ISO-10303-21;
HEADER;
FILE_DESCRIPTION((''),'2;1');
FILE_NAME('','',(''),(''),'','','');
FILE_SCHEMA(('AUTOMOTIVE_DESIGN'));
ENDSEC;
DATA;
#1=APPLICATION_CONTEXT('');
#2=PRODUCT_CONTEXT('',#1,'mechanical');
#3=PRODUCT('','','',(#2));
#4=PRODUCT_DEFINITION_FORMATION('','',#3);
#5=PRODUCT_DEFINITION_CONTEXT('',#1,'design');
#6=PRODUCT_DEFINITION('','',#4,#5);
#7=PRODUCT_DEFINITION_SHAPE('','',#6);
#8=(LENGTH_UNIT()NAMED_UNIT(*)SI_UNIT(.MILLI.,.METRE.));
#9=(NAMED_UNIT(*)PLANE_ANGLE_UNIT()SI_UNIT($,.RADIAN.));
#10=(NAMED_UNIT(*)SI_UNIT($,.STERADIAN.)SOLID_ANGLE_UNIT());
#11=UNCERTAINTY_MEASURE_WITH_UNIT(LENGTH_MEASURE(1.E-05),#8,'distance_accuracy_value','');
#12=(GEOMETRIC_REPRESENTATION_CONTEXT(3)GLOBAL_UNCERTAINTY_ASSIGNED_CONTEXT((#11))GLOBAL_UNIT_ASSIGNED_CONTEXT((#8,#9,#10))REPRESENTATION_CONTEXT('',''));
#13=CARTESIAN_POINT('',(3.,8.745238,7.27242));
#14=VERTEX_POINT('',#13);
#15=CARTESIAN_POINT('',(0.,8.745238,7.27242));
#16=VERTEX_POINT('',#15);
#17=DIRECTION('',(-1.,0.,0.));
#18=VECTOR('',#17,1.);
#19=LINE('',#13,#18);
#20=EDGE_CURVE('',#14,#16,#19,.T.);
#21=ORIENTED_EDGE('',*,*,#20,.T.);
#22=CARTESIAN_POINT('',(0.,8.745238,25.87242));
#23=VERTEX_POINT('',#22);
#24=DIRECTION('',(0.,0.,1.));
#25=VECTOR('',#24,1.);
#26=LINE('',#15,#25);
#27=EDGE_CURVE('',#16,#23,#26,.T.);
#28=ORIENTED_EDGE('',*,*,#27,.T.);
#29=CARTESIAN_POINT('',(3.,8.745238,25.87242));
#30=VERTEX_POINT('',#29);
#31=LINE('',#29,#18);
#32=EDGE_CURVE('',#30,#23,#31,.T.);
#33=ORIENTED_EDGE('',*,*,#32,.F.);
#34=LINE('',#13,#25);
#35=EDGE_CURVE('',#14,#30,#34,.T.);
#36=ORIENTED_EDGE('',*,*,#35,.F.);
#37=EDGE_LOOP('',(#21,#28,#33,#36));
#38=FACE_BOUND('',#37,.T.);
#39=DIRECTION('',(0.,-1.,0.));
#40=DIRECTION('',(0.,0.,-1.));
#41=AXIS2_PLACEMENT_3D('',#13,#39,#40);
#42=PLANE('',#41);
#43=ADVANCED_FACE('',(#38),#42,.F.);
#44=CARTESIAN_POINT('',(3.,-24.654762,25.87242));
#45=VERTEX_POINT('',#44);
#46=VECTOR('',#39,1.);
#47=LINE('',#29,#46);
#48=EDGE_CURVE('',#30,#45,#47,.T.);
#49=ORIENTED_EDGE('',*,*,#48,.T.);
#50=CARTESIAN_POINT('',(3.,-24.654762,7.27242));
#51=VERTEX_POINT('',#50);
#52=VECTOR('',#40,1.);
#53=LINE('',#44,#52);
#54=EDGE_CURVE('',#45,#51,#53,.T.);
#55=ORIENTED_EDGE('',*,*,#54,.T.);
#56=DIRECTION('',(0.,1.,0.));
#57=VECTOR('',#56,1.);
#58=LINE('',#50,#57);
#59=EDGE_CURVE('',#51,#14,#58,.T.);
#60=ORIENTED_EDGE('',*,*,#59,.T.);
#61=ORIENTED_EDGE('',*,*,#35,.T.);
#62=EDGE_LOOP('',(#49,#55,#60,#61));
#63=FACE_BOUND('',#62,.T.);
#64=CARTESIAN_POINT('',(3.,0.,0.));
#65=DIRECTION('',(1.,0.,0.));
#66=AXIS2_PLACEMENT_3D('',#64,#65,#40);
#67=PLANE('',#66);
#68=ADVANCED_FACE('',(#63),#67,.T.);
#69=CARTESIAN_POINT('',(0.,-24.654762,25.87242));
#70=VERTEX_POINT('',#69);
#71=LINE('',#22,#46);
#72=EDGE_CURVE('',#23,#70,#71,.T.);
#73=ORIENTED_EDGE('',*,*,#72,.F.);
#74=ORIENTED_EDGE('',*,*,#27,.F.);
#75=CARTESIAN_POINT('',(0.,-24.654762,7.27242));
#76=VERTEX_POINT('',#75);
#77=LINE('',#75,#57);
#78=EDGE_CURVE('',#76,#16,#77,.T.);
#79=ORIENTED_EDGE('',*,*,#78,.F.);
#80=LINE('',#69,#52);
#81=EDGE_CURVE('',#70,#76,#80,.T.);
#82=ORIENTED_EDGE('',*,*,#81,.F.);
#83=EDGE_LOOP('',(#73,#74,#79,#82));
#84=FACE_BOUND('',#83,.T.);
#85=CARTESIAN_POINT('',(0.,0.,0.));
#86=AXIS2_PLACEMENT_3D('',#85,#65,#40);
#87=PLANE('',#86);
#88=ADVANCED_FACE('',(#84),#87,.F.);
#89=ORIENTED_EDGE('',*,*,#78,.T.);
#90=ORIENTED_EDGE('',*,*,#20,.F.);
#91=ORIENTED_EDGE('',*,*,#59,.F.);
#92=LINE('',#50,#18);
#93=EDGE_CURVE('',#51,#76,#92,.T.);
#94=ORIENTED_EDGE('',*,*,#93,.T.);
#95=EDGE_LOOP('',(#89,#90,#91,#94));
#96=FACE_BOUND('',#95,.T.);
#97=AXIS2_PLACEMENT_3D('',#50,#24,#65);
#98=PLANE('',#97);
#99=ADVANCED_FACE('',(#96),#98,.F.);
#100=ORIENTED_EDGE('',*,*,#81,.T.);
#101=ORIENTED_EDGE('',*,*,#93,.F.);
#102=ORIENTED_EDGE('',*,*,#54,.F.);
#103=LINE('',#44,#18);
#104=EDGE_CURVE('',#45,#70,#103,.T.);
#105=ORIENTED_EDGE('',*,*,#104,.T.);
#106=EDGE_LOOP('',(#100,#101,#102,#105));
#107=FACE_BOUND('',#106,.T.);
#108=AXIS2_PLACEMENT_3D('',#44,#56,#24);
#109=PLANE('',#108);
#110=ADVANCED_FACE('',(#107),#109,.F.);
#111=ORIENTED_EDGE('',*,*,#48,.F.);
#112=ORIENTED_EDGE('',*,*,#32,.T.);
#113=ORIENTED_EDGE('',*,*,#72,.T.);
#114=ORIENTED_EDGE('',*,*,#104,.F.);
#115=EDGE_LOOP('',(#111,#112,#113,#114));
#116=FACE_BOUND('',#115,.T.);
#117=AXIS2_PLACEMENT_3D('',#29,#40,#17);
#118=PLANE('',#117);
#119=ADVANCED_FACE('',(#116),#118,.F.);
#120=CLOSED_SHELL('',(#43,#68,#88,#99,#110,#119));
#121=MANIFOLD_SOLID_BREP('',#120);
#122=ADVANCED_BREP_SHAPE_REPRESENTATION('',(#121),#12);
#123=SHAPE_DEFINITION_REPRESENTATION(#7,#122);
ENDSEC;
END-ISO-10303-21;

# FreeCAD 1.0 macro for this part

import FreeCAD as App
import Part
import Sketcher
Q = App.Units.Quantity


def add_polygon(sketch, points):
    """Adds a closed chain of lines whose ends are joined by coincident constraints."""
    first, n = sketch.GeometryCount, len(points)
    for a, b in zip(points, points[1:] + points[:1]):
        sketch.addGeometry(Part.LineSegment(App.Vector(*a, 0), App.Vector(*b, 0)), False)
    for i in range(n):
        sketch.addConstraint(Sketcher.Constraint("Coincident", first + i, 2, first + (i + 1) % n, 1))

doc = App.newDocument("Part")
body = doc.addObject("PartDesign::Body", "Body")

# Sketch on YZ plane
sketch1 = body.newObject("Sketcher::SketchObject", "Sketch")
sketch1.AttachmentSupport = (doc.getObject("YZ_Plane"), [""])
sketch1.MapMode = "FlatFace"
add_polygon(sketch1, [(9, 26), (-25, 26), (-25, 7), (9, 7)])  # lines 0-3
sketch1.addConstraint([
    Sketcher.Constraint("Horizontal", 0),
    Sketcher.Constraint("Vertical", 1),
    Sketcher.Constraint("Horizontal", 2),
    Sketcher.Constraint("Vertical", 3),
    Sketcher.Constraint("DistanceX", 0, 2, 0, 1, Q("33.4 mm")),
    Sketcher.Constraint("DistanceY", 1, 2, 1, 1, Q("18.6 mm")),
    Sketcher.Constraint("DistanceX", 0, 2, -1, 1, Q("24.654762 mm")),
    Sketcher.Constraint("DistanceY", -1, 1, 0, 2, Q("25.87242 mm")),
])
pad1 = body.newObject("PartDesign::Pad", "Pad")
pad1.Profile = sketch1
pad1.Length = 3

doc.recompute()
